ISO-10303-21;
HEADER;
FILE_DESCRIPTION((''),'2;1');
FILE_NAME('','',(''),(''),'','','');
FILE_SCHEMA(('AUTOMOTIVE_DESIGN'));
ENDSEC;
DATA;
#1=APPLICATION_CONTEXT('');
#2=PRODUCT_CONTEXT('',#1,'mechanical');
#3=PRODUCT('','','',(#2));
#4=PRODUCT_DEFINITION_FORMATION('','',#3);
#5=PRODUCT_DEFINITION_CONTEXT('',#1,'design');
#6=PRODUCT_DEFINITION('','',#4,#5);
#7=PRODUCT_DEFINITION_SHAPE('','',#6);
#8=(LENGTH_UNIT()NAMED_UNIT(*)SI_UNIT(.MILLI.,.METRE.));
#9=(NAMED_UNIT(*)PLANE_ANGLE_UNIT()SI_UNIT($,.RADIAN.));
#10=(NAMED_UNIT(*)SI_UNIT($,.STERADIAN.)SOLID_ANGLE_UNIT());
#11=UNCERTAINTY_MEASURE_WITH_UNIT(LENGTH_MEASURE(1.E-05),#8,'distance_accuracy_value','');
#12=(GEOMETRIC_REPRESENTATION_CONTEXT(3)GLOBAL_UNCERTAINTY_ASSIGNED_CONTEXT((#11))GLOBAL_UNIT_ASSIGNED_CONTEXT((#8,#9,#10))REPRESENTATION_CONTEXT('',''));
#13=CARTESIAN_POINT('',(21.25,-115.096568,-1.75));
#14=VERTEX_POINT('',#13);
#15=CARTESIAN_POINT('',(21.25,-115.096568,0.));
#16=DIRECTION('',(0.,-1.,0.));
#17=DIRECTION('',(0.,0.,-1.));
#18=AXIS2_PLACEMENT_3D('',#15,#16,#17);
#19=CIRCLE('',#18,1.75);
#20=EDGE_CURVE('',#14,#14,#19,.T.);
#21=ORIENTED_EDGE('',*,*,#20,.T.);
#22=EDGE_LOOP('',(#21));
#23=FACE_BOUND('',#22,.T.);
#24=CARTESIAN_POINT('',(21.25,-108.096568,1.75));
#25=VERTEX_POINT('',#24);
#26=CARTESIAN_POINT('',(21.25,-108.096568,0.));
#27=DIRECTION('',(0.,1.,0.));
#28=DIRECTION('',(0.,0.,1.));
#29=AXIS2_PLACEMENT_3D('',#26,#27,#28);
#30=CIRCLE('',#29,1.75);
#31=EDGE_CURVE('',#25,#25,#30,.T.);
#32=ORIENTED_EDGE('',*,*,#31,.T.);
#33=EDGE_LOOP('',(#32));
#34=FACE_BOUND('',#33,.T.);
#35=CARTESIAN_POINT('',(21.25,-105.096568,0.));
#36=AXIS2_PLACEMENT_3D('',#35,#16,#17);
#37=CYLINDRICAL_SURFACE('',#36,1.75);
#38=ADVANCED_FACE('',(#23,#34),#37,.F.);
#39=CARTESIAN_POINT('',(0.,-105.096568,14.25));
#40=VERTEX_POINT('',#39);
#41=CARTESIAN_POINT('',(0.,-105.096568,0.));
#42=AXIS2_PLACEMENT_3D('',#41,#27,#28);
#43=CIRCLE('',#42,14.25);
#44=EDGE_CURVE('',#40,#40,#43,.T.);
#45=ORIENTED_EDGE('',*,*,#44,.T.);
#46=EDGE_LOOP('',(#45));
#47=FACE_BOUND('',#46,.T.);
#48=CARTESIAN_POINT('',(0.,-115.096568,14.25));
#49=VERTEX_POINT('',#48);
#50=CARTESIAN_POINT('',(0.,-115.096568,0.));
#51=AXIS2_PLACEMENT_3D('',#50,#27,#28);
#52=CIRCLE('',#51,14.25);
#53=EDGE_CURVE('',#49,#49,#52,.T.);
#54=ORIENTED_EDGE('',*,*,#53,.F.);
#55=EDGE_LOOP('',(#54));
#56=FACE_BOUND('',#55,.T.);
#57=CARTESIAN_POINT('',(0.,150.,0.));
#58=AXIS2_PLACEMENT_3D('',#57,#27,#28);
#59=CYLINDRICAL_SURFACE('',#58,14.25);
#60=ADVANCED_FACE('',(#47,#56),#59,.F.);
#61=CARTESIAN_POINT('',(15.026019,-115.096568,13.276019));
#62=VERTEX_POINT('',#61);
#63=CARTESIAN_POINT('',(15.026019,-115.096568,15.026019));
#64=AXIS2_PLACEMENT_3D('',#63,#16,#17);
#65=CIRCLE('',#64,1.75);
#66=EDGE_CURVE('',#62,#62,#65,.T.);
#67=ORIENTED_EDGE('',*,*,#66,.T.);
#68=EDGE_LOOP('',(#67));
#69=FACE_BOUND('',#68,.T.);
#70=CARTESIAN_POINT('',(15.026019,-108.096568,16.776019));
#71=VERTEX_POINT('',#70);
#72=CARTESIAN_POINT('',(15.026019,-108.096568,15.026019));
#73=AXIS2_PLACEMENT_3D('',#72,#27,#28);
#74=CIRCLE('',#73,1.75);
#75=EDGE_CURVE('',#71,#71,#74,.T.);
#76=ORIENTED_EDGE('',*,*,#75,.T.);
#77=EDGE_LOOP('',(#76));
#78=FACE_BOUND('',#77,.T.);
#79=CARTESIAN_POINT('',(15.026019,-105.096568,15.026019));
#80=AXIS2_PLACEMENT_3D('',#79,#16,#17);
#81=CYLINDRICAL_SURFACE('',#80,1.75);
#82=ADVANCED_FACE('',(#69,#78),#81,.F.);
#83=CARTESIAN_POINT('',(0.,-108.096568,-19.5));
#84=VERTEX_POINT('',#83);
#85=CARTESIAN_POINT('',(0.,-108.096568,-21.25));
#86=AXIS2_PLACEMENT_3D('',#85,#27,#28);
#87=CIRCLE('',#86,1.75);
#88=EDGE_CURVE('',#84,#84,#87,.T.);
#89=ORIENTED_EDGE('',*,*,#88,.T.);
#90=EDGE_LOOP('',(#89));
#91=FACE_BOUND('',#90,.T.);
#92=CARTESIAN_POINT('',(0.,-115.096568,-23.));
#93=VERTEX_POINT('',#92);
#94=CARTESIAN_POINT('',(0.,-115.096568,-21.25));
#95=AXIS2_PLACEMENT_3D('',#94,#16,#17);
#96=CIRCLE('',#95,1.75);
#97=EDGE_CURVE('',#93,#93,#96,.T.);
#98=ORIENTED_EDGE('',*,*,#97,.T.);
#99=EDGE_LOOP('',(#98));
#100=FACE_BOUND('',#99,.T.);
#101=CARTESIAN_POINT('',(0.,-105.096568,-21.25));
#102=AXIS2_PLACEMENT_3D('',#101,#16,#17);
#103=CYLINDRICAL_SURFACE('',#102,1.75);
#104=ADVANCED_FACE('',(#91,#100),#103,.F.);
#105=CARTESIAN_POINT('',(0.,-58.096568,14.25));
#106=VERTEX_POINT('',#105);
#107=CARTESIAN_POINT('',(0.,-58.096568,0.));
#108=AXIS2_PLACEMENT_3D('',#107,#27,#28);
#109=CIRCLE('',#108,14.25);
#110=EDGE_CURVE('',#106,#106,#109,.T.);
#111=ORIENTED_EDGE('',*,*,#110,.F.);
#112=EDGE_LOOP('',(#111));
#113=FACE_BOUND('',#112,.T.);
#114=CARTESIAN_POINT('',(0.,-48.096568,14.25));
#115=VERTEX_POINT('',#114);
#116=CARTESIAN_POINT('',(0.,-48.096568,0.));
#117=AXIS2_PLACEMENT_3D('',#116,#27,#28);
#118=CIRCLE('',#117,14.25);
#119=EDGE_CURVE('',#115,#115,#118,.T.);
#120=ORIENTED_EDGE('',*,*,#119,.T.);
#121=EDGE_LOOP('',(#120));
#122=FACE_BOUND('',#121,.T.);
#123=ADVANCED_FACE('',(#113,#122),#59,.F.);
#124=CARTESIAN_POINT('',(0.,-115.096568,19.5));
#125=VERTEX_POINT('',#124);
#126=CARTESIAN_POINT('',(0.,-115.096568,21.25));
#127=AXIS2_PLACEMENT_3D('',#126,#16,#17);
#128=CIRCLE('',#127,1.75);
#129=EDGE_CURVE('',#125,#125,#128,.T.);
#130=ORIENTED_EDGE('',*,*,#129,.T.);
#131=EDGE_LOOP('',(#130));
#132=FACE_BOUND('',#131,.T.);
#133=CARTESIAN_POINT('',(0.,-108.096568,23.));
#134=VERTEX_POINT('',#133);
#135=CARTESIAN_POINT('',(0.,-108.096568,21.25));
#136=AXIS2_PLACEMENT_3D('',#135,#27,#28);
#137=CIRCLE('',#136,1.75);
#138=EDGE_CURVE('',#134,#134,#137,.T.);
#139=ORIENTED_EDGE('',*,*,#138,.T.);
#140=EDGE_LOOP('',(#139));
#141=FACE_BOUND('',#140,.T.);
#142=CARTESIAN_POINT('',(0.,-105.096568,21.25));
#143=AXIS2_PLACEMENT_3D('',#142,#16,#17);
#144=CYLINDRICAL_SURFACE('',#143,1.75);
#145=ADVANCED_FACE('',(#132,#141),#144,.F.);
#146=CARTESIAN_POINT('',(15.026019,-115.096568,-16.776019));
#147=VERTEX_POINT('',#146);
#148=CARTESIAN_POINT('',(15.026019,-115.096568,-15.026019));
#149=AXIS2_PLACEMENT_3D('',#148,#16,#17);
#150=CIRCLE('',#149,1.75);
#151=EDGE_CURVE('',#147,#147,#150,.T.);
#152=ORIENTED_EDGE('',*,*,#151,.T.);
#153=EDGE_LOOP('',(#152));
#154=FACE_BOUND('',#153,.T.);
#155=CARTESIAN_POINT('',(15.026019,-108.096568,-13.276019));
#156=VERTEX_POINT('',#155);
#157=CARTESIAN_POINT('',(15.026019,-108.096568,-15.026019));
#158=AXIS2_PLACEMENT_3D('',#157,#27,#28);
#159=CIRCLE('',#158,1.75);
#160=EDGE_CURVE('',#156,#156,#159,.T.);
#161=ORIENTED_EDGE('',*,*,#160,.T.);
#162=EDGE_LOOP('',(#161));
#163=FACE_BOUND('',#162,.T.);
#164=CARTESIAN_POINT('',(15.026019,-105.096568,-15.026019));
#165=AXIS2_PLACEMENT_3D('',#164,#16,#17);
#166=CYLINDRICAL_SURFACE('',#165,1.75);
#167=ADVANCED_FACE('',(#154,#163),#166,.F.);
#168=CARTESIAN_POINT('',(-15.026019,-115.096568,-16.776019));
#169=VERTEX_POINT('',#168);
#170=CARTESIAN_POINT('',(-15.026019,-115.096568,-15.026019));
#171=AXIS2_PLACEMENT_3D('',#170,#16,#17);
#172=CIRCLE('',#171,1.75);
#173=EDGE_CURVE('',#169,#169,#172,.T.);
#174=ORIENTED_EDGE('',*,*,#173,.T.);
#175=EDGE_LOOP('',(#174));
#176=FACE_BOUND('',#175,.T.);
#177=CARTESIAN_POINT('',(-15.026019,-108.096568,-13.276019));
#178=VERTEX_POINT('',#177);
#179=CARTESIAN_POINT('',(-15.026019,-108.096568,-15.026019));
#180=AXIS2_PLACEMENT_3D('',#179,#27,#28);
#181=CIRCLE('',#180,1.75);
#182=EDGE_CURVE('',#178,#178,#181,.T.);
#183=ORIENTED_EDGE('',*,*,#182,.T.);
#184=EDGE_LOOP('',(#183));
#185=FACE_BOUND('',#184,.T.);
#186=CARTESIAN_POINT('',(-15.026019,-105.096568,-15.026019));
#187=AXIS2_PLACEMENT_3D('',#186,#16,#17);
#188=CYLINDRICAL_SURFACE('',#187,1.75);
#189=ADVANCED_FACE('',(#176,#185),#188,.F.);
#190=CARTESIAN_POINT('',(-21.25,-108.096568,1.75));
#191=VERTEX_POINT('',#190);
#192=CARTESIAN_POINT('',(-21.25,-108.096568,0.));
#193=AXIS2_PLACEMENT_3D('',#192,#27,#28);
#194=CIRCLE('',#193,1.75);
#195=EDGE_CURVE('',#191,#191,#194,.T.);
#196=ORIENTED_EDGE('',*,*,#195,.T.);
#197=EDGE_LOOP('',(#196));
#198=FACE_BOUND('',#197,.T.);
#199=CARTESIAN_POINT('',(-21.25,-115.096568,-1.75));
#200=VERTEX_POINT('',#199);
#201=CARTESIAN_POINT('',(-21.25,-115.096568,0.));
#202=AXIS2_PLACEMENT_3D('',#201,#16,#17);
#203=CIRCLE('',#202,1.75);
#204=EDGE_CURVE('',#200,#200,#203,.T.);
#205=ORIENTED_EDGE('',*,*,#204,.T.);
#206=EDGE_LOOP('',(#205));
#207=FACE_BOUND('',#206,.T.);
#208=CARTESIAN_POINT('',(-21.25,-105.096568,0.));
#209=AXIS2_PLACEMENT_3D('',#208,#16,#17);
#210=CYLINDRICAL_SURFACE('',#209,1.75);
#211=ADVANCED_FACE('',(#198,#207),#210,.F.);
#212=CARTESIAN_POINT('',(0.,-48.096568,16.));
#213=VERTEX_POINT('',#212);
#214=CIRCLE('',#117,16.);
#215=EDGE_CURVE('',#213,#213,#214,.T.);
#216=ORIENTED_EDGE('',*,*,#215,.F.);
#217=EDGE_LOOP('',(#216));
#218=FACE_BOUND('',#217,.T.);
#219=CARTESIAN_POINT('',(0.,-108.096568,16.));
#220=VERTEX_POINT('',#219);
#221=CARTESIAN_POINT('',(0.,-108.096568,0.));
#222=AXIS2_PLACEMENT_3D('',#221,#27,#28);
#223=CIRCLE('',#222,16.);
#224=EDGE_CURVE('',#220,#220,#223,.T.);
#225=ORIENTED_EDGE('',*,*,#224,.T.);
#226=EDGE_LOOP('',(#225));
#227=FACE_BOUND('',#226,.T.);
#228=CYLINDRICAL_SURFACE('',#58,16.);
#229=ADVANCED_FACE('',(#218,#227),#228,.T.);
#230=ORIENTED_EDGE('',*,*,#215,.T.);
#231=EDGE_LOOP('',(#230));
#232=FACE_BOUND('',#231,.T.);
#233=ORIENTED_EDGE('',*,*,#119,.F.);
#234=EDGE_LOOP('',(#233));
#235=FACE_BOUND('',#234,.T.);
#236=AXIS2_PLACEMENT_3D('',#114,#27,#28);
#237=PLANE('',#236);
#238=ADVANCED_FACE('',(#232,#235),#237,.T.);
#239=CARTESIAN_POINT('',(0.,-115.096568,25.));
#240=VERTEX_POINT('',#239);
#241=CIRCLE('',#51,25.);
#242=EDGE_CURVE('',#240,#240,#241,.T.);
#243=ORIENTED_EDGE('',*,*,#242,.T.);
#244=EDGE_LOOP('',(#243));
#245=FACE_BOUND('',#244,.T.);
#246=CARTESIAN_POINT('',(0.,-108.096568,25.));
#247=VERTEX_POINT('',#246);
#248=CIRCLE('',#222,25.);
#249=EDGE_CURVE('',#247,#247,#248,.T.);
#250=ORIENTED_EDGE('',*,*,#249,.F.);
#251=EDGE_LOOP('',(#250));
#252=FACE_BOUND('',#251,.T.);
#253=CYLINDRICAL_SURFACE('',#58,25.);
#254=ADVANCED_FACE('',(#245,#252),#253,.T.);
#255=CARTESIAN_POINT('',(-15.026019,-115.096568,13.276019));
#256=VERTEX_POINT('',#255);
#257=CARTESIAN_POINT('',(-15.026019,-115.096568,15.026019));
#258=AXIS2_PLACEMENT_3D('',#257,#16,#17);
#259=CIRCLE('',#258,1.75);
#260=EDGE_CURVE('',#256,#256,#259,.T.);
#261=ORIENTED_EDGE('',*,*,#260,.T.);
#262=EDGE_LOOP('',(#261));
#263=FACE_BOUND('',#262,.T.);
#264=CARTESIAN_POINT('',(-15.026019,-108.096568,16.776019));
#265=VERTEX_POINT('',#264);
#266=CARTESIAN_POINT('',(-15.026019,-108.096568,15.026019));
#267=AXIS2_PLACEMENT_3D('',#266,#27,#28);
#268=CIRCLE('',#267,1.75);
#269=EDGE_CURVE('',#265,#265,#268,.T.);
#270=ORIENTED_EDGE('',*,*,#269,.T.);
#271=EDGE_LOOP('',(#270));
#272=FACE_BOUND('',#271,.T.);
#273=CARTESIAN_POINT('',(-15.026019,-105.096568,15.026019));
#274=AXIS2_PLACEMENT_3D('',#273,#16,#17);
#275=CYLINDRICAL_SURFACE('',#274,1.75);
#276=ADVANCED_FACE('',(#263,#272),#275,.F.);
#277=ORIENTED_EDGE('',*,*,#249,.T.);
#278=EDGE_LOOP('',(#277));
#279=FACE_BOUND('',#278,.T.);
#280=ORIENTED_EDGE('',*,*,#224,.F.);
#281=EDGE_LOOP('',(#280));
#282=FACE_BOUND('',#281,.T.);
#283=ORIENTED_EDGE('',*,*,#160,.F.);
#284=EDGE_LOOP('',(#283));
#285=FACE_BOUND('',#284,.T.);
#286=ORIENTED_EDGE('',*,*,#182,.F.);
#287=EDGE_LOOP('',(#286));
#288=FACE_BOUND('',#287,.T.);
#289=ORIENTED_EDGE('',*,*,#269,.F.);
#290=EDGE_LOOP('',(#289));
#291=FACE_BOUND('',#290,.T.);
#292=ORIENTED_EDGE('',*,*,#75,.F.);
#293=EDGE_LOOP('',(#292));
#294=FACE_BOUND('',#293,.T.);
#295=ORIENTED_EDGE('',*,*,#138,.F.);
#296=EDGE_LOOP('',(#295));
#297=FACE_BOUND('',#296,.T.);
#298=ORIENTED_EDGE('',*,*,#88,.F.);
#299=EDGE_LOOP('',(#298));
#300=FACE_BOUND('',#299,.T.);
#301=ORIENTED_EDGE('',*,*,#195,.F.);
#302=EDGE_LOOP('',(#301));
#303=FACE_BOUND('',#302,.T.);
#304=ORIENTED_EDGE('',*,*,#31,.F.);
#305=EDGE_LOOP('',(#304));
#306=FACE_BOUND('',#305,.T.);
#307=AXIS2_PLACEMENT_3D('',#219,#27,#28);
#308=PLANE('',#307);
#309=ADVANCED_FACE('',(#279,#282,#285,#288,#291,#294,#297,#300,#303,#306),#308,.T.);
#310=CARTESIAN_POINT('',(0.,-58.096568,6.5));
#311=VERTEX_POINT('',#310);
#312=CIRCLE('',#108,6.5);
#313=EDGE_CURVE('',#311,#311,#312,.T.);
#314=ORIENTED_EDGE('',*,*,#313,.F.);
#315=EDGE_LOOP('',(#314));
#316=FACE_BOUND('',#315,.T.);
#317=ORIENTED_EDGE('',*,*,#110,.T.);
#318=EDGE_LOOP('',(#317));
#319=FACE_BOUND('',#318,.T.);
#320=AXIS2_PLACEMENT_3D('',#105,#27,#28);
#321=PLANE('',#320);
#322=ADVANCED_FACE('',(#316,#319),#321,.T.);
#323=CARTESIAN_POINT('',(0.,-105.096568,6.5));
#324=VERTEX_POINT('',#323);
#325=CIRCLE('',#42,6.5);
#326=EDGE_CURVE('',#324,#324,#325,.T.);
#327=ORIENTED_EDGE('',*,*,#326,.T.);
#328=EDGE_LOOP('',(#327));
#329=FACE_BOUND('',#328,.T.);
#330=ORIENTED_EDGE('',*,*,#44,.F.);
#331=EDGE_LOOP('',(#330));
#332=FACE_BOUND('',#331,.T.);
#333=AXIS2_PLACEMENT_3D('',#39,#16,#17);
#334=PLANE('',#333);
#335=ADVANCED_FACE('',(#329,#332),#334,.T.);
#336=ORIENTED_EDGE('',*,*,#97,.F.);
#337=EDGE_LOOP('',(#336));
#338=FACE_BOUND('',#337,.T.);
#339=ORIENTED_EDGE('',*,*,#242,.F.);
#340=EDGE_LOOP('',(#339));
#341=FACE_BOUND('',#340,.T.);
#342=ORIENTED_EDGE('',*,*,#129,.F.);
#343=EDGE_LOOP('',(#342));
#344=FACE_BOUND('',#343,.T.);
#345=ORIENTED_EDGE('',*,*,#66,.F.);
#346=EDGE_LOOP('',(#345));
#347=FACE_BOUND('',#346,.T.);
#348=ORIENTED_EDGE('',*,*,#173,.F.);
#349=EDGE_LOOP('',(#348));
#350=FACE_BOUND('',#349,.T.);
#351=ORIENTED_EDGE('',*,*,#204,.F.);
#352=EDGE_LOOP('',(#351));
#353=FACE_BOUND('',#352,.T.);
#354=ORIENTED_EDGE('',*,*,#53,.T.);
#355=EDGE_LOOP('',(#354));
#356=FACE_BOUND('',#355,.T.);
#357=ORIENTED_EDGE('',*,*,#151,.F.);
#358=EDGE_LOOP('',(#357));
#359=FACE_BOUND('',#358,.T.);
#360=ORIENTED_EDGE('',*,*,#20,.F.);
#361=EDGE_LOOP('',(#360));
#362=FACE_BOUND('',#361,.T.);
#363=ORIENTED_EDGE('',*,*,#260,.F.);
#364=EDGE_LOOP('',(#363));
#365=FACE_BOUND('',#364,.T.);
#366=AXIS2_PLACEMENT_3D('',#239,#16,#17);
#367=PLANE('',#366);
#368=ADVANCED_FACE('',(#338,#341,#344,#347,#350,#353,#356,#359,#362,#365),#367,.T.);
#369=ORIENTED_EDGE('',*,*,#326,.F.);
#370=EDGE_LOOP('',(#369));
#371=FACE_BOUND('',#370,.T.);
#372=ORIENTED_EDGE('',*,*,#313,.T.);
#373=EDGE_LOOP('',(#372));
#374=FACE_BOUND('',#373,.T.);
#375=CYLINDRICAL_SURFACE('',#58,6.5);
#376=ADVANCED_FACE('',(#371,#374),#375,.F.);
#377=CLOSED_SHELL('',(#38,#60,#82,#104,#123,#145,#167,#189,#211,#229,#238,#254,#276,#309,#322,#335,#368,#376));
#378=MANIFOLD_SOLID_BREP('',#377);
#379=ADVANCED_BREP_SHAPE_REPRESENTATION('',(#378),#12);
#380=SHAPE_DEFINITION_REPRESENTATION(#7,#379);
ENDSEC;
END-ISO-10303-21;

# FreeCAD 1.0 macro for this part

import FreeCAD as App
import Part
import Sketcher
from FreeCAD import Vector


def add_polygon(sketch, points):
    """Adds a closed chain of lines whose ends are joined by coincident constraints."""
    first, n = sketch.GeometryCount, len(points)
    for a, b in zip(points, points[1:] + points[:1]):
        sketch.addGeometry(Part.LineSegment(App.Vector(*a, 0), App.Vector(*b, 0)), False)
    for i in range(n):
        sketch.addConstraint(Sketcher.Constraint("Coincident", first + i, 2, first + (i + 1) % n, 1))

doc = App.newDocument("Part")
body = doc.addObject("PartDesign::Body", "Body")

sketch1 = doc.addObject("Sketcher::SketchObject", "Sketch")
body.addObject(sketch1)
sketch1.AttachmentSupport = (doc.YZ_Plane, [""])
sketch1.MapMode = "FlatFace"
add_polygon(sketch1, [(-48.1, 16), (-108.1, 16), (-108.1, 25), (-115.1, 25), (-115.1, 14.2), (-105.1, 14.2), (-105.1, 6.5), (-58.1, 6.5), (-58.1, 14.2), (-48.1, 14.2)])
sketch1.addConstraint([
    Sketcher.Constraint("Horizontal", 0),
    Sketcher.Constraint("Vertical", 1),
    Sketcher.Constraint("Horizontal", 2),
    Sketcher.Constraint("Vertical", 3),
    Sketcher.Constraint("Horizontal", 4),
    Sketcher.Constraint("Vertical", 5),
    Sketcher.Constraint("Horizontal", 6),
    Sketcher.Constraint("Vertical", 7),
    Sketcher.Constraint("Horizontal", 8),
    Sketcher.Constraint("Vertical", 9),
    Sketcher.Constraint("Horizontal", 4, 2, 7, 2),
    Sketcher.Constraint("Equal", 4, 8),
    Sketcher.Constraint("DistanceX", 0, 2, 0, 1, 60.0),
    Sketcher.Constraint("DistanceX", 2, 2, 2, 1, 7.0),
    Sketcher.Constraint("DistanceX", 4, 1, 4, 2, 10.0),
    Sketcher.Constraint("DistanceY", 1, 1, 1, 2, 9.0),
    Sketcher.Constraint("DistanceY", -1, 1, 0, 2, 16.0),
    Sketcher.Constraint("DistanceY", 3, 2, 3, 1, 10.75),
    Sketcher.Constraint("DistanceY", 5, 2, 5, 1, 7.75),
    Sketcher.Constraint("DistanceX", 0, 2, -1, 1, 108.096568),
])
revolution = doc.addObject("PartDesign::Revolution", "Revolution")
body.addObject(revolution)
revolution.Profile = sketch1
revolution.ReferenceAxis = (sketch1, ["H_Axis"])
revolution.Angle = 360

sketch2 = doc.addObject("Sketcher::SketchObject", "Sketch001")
body.addObject(sketch2)
sketch2.AttachmentSupport = (doc.XZ_Plane, [""])
sketch2.MapMode = "FlatFace"
sketch2.AttachmentOffset = App.Placement(Vector(0, 0, 115.096568), App.Rotation())
sketch2.addGeometry([
    Part.Circle(Vector(0, -21.2, 0), Vector(0, 0, 1), 1.8),
    Part.Circle(Vector(-15, -15, 0), Vector(0, 0, 1), 1.8),
    Part.Circle(Vector(-21.2, 0, 0), Vector(0, 0, 1), 1.8),
    Part.Circle(Vector(-15, 15, 0), Vector(0, 0, 1), 1.8),
    Part.Circle(Vector(0, 21.2, 0), Vector(0, 0, 1), 1.8),
    Part.Circle(Vector(15, 15, 0), Vector(0, 0, 1), 1.8),
    Part.Circle(Vector(21.2, 0, 0), Vector(0, 0, 1), 1.8),
    Part.Circle(Vector(15, -15, 0), Vector(0, 0, 1), 1.8),
], False)
sketch2.addConstraint([
    Sketcher.Constraint("Equal", 0, 1),
    Sketcher.Constraint("Equal", 1, 2),
    Sketcher.Constraint("Equal", 2, 3),
    Sketcher.Constraint("Equal", 3, 4),
    Sketcher.Constraint("Equal", 4, 5),
    Sketcher.Constraint("Equal", 5, 6),
    Sketcher.Constraint("Equal", 6, 7),
    Sketcher.Constraint("Symmetric", 0, 3, 4, 3, -1, 1),
    Sketcher.Constraint("Symmetric", 1, 3, 5, 3, -1, 1),
    Sketcher.Constraint("Symmetric", 2, 3, 6, 3, -1, 1),
    Sketcher.Constraint("Symmetric", 3, 3, 7, 3, -1, 1),
    Sketcher.Constraint("Symmetric", 3, 3, 5, 3, -2),
    Sketcher.Constraint("PointOnObject", 0, 3, -2),
    Sketcher.Constraint("PointOnObject", 2, 3, -1),
    Sketcher.Constraint("Diameter", 0, 3.5),
    Sketcher.Constraint("DistanceY", 0, 3, 4, 3, 42.5),
    Sketcher.Constraint("DistanceX", 2, 3, -1, 1, 21.25),
    Sketcher.Constraint("DistanceX", 1, 3, -1, 1, 15.026019),
    Sketcher.Constraint("DistanceY", 1, 3, -1, 1, 15.026019),
])
pocket1 = doc.addObject("PartDesign::Pocket", "Pocket")
body.addObject(pocket1)
pocket1.Profile = sketch2
pocket1.Length = 10

doc.recompute()
